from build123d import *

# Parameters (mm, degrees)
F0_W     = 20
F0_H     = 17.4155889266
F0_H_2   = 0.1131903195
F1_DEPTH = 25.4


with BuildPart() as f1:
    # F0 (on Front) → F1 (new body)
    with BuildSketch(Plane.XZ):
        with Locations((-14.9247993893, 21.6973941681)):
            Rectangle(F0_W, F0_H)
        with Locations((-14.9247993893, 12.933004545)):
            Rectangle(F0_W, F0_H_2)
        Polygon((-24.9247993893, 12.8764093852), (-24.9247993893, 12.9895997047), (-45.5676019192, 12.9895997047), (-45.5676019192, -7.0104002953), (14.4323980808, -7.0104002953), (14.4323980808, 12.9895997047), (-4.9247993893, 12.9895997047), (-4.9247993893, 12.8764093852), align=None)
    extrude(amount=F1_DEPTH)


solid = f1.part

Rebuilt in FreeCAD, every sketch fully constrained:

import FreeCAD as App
import Part
import Sketcher
from FreeCAD import Vector
Q = App.Units.Quantity

doc = App.newDocument("Part")
body = doc.addObject("PartDesign::Body", "Body")

# Sketch on XZ plane
sketch1 = body.newObject("Sketcher::SketchObject", "Sketch")
sketch1.AttachmentSupport = (doc.getObject("XZ_Plane"), [""])
sketch1.MapMode = "FlatFace"
sketch1.addGeometry(Part.LineSegment(Vector(-25, 30, 0), Vector(-25, 13, 0)), False)
sketch1.addGeometry(Part.LineSegment(Vector(-25, 13, 0), Vector(-46, 13, 0)), False)
sketch1.addGeometry(Part.LineSegment(Vector(-46, 13, 0), Vector(-46, -7, 0)), False)
sketch1.addGeometry(Part.LineSegment(Vector(-46, -7, 0), Vector(14, -7, 0)), False)
sketch1.addGeometry(Part.LineSegment(Vector(14, -7, 0), Vector(14, 13, 0)), False)
sketch1.addGeometry(Part.LineSegment(Vector(14, 13, 0), Vector(-5, 13, 0)), False)
sketch1.addGeometry(Part.LineSegment(Vector(-5, 13, 0), Vector(-5, 30, 0)), False)
sketch1.addGeometry(Part.LineSegment(Vector(-5, 30, 0), Vector(-25, 30, 0)), False)
sketch1.addConstraint(Sketcher.Constraint("Coincident", 0, 2, 1, 1))
sketch1.addConstraint(Sketcher.Constraint("Coincident", 1, 2, 2, 1))
sketch1.addConstraint(Sketcher.Constraint("Coincident", 2, 2, 3, 1))
sketch1.addConstraint(Sketcher.Constraint("Coincident", 3, 2, 4, 1))
sketch1.addConstraint(Sketcher.Constraint("Coincident", 4, 2, 5, 1))
sketch1.addConstraint(Sketcher.Constraint("Coincident", 5, 2, 6, 1))
sketch1.addConstraint(Sketcher.Constraint("Coincident", 6, 2, 7, 1))
sketch1.addConstraint(Sketcher.Constraint("Coincident", 7, 2, 0, 1))
sketch1.addConstraint(Sketcher.Constraint("Vertical", 0))
sketch1.addConstraint(Sketcher.Constraint("Horizontal", 1))
sketch1.addConstraint(Sketcher.Constraint("Vertical", 2))
sketch1.addConstraint(Sketcher.Constraint("Horizontal", 3))
sketch1.addConstraint(Sketcher.Constraint("Vertical", 4))
sketch1.addConstraint(Sketcher.Constraint("Horizontal", 5))
sketch1.addConstraint(Sketcher.Constraint("Vertical", 6))
sketch1.addConstraint(Sketcher.Constraint("Horizontal", 7))
sketch1.addConstraint(Sketcher.Constraint("Horizontal", 1, 2, 4, 2))
sketch1.addConstraint(Sketcher.Constraint("Equal", 7, 2))
sketch1.addConstraint(Sketcher.Constraint("DistanceX", 3, 1, 3, 2, Q("60 mm")))
sketch1.addConstraint(Sketcher.Constraint("DistanceX", 7, 2, 7, 1, Q("20 mm")))
sketch1.addConstraint(Sketcher.Constraint("DistanceY", 0, 2, 0, 1, Q("17.415589 mm")))
sketch1.addConstraint(Sketcher.Constraint("DistanceX", 0, 2, -1, 1, Q("24.924799 mm")))
sketch1.addConstraint(Sketcher.Constraint("DistanceY", -1, 1, 0, 2, Q("12.9896 mm")))
sketch1.addConstraint(Sketcher.Constraint("DistanceX", 1, 2, -1, 1, Q("45.567602 mm")))
pad1 = body.newObject("PartDesign::Pad", "Pad")
pad1.Profile = sketch1
pad1.Length = 25.4

doc.recompute()
